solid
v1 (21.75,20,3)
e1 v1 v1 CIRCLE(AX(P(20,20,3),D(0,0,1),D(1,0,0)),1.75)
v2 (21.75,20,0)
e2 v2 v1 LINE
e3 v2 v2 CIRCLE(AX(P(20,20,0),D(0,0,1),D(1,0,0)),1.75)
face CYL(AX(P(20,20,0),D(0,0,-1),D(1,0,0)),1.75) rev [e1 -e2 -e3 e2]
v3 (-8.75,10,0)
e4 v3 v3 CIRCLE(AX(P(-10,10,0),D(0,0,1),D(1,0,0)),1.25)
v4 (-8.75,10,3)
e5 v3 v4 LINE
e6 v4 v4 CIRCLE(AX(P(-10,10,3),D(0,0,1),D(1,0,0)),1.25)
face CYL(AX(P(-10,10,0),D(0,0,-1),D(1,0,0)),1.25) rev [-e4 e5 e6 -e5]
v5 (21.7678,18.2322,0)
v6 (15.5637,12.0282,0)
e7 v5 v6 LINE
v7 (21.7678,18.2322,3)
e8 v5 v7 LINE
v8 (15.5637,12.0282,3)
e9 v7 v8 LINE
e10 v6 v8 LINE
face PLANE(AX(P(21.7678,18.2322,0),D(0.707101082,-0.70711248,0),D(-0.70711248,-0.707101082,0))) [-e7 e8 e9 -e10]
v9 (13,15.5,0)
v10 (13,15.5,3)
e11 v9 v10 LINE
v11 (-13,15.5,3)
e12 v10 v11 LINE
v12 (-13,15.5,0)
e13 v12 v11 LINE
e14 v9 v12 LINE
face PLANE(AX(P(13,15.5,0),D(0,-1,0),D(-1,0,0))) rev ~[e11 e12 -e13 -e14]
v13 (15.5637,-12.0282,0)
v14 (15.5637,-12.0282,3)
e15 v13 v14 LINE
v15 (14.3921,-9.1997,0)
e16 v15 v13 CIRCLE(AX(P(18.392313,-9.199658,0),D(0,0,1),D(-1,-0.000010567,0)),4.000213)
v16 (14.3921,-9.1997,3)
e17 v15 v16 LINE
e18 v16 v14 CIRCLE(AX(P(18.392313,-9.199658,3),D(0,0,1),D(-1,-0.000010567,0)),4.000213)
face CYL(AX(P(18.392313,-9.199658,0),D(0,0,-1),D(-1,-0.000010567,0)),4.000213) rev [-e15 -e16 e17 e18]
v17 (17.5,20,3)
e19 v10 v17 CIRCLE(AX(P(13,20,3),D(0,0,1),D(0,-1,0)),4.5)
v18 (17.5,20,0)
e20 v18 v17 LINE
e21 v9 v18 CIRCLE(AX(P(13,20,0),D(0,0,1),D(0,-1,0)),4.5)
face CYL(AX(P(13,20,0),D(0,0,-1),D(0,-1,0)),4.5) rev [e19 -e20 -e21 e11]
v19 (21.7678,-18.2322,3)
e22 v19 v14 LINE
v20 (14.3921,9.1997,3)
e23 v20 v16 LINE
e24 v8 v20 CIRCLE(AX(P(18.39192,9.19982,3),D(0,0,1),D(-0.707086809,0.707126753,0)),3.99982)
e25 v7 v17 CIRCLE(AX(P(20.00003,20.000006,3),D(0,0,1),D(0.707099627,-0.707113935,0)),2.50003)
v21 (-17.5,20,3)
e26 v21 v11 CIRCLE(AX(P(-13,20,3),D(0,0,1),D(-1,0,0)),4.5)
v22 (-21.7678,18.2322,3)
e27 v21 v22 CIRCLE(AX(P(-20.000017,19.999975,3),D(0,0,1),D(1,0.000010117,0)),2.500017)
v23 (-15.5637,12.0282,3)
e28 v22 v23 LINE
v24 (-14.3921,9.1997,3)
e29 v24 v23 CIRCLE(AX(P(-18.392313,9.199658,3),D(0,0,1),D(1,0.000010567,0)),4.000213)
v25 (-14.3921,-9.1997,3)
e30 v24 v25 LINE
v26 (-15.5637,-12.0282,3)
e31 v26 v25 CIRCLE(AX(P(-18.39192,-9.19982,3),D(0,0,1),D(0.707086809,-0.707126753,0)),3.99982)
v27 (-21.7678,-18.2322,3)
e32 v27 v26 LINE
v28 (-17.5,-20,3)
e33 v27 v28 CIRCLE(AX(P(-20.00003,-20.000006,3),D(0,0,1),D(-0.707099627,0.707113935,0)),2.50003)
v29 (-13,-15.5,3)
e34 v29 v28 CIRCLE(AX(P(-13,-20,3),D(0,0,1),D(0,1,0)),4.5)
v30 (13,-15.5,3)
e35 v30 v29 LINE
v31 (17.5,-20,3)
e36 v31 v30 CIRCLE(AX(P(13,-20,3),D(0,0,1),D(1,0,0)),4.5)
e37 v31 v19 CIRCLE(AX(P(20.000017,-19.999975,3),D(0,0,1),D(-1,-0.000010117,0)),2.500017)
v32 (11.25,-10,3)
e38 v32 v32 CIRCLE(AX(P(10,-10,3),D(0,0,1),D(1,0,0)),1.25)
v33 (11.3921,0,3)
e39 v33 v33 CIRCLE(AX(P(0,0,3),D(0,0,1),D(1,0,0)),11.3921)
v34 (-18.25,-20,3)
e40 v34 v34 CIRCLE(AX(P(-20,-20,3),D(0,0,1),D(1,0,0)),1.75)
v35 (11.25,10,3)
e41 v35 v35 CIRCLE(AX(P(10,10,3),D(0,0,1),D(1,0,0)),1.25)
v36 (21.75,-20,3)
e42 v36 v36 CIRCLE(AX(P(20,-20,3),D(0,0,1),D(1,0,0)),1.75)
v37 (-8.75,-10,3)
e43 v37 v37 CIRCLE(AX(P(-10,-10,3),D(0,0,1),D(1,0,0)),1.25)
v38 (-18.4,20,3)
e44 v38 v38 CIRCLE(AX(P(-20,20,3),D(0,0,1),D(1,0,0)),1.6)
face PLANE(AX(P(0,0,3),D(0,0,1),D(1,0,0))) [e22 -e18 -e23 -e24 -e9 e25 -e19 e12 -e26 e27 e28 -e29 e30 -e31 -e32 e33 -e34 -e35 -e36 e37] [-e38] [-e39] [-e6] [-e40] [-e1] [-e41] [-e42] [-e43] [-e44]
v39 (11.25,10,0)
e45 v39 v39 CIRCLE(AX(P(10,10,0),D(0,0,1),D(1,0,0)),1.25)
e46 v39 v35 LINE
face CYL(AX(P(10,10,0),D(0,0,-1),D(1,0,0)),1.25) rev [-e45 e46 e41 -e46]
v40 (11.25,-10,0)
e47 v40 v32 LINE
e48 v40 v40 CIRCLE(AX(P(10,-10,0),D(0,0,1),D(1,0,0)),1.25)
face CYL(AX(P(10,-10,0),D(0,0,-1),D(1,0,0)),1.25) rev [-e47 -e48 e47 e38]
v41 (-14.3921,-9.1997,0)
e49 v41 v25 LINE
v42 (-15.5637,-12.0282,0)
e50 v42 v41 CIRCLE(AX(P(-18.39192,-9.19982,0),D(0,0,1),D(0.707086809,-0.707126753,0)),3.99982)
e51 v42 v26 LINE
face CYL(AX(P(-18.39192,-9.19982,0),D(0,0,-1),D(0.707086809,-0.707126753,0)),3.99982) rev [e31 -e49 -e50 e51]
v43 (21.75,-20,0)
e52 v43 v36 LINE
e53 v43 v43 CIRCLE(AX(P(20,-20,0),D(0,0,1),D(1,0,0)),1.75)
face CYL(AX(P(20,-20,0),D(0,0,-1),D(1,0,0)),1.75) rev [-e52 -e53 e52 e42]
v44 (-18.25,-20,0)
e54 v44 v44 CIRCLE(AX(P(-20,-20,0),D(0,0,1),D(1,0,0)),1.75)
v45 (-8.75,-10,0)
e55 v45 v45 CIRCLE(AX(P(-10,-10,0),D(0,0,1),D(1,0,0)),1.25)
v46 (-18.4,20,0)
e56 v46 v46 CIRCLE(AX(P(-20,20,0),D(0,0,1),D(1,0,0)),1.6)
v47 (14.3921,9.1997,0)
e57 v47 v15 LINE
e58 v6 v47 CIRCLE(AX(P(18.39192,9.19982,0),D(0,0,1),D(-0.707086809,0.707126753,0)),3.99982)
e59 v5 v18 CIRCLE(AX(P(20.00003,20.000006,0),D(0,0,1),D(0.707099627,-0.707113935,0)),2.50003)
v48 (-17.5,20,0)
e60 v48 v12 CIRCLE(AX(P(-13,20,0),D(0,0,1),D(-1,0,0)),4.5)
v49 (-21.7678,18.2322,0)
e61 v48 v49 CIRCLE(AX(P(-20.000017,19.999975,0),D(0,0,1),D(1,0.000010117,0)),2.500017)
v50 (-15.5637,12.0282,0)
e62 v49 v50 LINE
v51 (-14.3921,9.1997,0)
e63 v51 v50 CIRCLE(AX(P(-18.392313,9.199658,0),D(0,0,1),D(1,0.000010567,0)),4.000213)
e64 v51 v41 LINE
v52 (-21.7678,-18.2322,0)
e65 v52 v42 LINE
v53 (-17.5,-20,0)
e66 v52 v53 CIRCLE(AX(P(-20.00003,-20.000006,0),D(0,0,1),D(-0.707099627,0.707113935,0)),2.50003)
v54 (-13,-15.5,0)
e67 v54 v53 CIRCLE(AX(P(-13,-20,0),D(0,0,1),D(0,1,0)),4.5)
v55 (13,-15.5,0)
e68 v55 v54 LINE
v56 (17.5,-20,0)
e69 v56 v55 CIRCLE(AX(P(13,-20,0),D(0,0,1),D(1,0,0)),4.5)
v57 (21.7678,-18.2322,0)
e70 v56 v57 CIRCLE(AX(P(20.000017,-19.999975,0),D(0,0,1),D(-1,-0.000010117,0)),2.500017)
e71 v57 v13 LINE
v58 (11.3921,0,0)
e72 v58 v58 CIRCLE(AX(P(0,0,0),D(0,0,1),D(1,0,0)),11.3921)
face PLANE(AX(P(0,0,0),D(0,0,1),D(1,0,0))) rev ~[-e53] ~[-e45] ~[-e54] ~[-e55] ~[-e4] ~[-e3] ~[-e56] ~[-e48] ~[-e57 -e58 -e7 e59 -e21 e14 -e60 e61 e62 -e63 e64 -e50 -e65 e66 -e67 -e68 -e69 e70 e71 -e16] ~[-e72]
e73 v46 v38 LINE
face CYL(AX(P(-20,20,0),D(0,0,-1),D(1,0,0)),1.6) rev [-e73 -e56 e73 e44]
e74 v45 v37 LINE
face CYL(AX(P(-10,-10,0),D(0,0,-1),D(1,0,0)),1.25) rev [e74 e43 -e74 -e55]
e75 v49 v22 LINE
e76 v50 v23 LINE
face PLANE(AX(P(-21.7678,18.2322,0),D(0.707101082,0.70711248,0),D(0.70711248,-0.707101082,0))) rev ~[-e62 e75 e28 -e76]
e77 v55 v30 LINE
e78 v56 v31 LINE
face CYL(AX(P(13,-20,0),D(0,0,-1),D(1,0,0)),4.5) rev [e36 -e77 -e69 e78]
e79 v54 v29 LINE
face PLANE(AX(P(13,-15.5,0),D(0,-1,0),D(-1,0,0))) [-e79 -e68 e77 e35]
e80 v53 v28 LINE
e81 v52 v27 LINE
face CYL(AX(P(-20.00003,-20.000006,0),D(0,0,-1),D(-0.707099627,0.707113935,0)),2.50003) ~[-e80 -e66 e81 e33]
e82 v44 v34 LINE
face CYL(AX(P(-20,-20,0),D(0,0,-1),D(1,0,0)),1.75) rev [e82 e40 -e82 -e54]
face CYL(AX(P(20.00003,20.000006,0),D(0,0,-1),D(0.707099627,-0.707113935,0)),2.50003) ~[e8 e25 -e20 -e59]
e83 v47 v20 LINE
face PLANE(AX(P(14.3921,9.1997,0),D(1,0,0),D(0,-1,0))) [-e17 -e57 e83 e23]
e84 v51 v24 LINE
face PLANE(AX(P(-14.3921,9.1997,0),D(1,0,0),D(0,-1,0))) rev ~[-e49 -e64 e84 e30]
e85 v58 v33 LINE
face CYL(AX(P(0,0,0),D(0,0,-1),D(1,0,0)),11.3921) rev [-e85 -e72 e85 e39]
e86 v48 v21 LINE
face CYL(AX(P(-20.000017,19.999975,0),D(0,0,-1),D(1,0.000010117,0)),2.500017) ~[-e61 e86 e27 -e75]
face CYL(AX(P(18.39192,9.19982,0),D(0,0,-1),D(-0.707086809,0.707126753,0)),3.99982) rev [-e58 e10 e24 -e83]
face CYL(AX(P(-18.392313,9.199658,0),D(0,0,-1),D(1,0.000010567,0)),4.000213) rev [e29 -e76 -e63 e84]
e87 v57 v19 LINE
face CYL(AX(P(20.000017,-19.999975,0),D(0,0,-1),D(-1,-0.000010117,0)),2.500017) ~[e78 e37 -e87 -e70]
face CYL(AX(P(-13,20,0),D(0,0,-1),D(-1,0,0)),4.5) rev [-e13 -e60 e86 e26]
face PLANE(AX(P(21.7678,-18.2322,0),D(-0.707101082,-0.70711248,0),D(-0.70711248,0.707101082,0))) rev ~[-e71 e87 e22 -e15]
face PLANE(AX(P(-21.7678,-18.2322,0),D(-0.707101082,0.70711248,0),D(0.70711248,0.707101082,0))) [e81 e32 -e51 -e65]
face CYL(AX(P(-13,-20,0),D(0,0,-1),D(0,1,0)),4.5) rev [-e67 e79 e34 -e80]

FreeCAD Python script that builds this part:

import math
import FreeCAD as App
import Part
import Sketcher
Q = App.Units.Quantity

doc = App.newDocument("Part")
body = doc.addObject("PartDesign::Body", "Body")

# Sketch on XY plane
sketch1 = body.newObject("Sketcher::SketchObject", "Sketch")
sketch1.AttachmentSupport = (doc.getObject("XY_Plane"), [""])
sketch1.MapMode = "FlatFace"
sketch1.addGeometry(Part.LineSegment(App.Vector(15.6, 12, 0), App.Vector(21.8, 18.2, 0)), False)
sketch1.addGeometry(Part.ArcOfCircle(Part.Circle(App.Vector(20, 20, 0), App.Vector(0, 0, 1), 2.5), math.radians(-45), math.radians(180)), False)
sketch1.addGeometry(Part.ArcOfCircle(Part.Circle(App.Vector(13, 20, 0), App.Vector(0, 0, 1), 4.5), math.radians(-90), math.radians(0)), False)
sketch1.addGeometry(Part.LineSegment(App.Vector(13, 15.5, 0), App.Vector(-13, 15.5, 0)), False)
sketch1.addGeometry(Part.ArcOfCircle(Part.Circle(App.Vector(-13, 20, 0), App.Vector(0, 0, 1), 4.5), math.radians(180), math.radians(270)), False)
sketch1.addGeometry(Part.ArcOfCircle(Part.Circle(App.Vector(-20, 20, 0), App.Vector(0, 0, 1), 2.5), math.radians(0), math.radians(225)), False)
sketch1.addGeometry(Part.LineSegment(App.Vector(-21.8, 18.2, 0), App.Vector(-15.6, 12, 0)), False)
sketch1.addGeometry(Part.ArcOfCircle(Part.Circle(App.Vector(-18.4, 9.2, 0), App.Vector(0, 0, 1), 4), math.radians(0), math.radians(45)), False)
sketch1.addGeometry(Part.LineSegment(App.Vector(-14.4, 9.2, 0), App.Vector(-14.4, -9.2, 0)), False)
sketch1.addGeometry(Part.ArcOfCircle(Part.Circle(App.Vector(-18.4, -9.2, 0), App.Vector(0, 0, 1), 4), math.radians(-45), math.radians(0)), False)
sketch1.addGeometry(Part.LineSegment(App.Vector(-15.6, -12, 0), App.Vector(-21.8, -18.2, 0)), False)
sketch1.addGeometry(Part.ArcOfCircle(Part.Circle(App.Vector(-20, -20, 0), App.Vector(0, 0, 1), 2.5), math.radians(135), math.radians(360)), False)
sketch1.addGeometry(Part.ArcOfCircle(Part.Circle(App.Vector(-13, -20, 0), App.Vector(0, 0, 1), 4.5), math.radians(90), math.radians(180)), False)
sketch1.addGeometry(Part.LineSegment(App.Vector(-13, -15.5, 0), App.Vector(13, -15.5, 0)), False)
sketch1.addGeometry(Part.ArcOfCircle(Part.Circle(App.Vector(13, -20, 0), App.Vector(0, 0, 1), 4.5), math.radians(0), math.radians(90)), False)
sketch1.addGeometry(Part.ArcOfCircle(Part.Circle(App.Vector(20, -20, 0), App.Vector(0, 0, 1), 2.5), math.radians(180), math.radians(405)), False)
sketch1.addGeometry(Part.LineSegment(App.Vector(21.8, -18.2, 0), App.Vector(15.6, -12, 0)), False)
sketch1.addGeometry(Part.ArcOfCircle(Part.Circle(App.Vector(18.4, -9.2, 0), App.Vector(0, 0, 1), 4), math.radians(180), math.radians(225)), False)
sketch1.addGeometry(Part.LineSegment(App.Vector(14.4, -9.2, 0), App.Vector(14.4, 9.2, 0)), False)
sketch1.addGeometry(Part.ArcOfCircle(Part.Circle(App.Vector(18.4, 9.2, 0), App.Vector(0, 0, 1), 4), math.radians(135), math.radians(180)), False)
sketch1.addGeometry(Part.Circle(App.Vector(-20, -20, 0), App.Vector(0, 0, 1), 1.8), False)
sketch1.addGeometry(Part.Circle(App.Vector(-10, -10, 0), App.Vector(0, 0, 1), 1.2), False)
sketch1.addGeometry(Part.Circle(App.Vector(20, -20, 0), App.Vector(0, 0, 1), 1.8), False)
sketch1.addGeometry(Part.Circle(App.Vector(10, -10, 0), App.Vector(0, 0, 1), 1.2), False)
sketch1.addGeometry(Part.Circle(App.Vector(-10, 10, 0), App.Vector(0, 0, 1), 1.2), False)
sketch1.addGeometry(Part.Circle(App.Vector(-20, 20, 0), App.Vector(0, 0, 1), 1.6), False)
sketch1.addGeometry(Part.Circle(App.Vector(0, 0, 0), App.Vector(0, 0, 1), 11.4), False)
sketch1.addGeometry(Part.Circle(App.Vector(10, 10, 0), App.Vector(0, 0, 1), 1.2), False)
sketch1.addGeometry(Part.Circle(App.Vector(20, 20, 0), App.Vector(0, 0, 1), 1.8), False)
sketch1.addConstraint(Sketcher.Constraint("Tangent", 0, 2, 1, 1))
sketch1.addConstraint(Sketcher.Constraint("Tangent", 1, 2, 2, 2))
sketch1.addConstraint(Sketcher.Constraint("Tangent", 2, 1, 3, 1))
sketch1.addConstraint(Sketcher.Constraint("Tangent", 3, 2, 4, 2))
sketch1.addConstraint(Sketcher.Constraint("Tangent", 4, 1, 5, 1))
sketch1.addConstraint(Sketcher.Constraint("Tangent", 5, 2, 6, 1))
sketch1.addConstraint(Sketcher.Constraint("Tangent", 6, 2, 7, 2))
sketch1.addConstraint(Sketcher.Constraint("Tangent", 7, 1, 8, 1))
sketch1.addConstraint(Sketcher.Constraint("Tangent", 8, 2, 9, 2))
sketch1.addConstraint(Sketcher.Constraint("Tangent", 9, 1, 10, 1))
sketch1.addConstraint(Sketcher.Constraint("Tangent", 10, 2, 11, 1))
sketch1.addConstraint(Sketcher.Constraint("Tangent", 11, 2, 12, 2))
sketch1.addConstraint(Sketcher.Constraint("Tangent", 12, 1, 13, 1))
sketch1.addConstraint(Sketcher.Constraint("Tangent", 13, 2, 14, 2))
sketch1.addConstraint(Sketcher.Constraint("Tangent", 14, 1, 15, 1))
sketch1.addConstraint(Sketcher.Constraint("Tangent", 15, 2, 16, 1))
sketch1.addConstraint(Sketcher.Constraint("Tangent", 16, 2, 17, 2))
sketch1.addConstraint(Sketcher.Constraint("Tangent", 17, 1, 18, 1))
sketch1.addConstraint(Sketcher.Constraint("Tangent", 18, 2, 19, 2))
sketch1.addConstraint(Sketcher.Constraint("Tangent", 19, 1, 0, 1))
sketch1.addConstraint(Sketcher.Constraint("Horizontal", 3))
sketch1.addConstraint(Sketcher.Constraint("Vertical", 8))
sketch1.addConstraint(Sketcher.Constraint("Horizontal", 13))
sketch1.addConstraint(Sketcher.Constraint("Vertical", 18))
sketch1.addConstraint(Sketcher.Constraint("Coincident", 26, 3, -1, 1))
sketch1.addConstraint(Sketcher.Constraint("Coincident", 20, 3, 11, 3))
sketch1.addConstraint(Sketcher.Constraint("Coincident", 22, 3, 15, 3))
sketch1.addConstraint(Sketcher.Constraint("Coincident", 25, 3, 5, 3))
sketch1.addConstraint(Sketcher.Constraint("Coincident", 28, 3, 1, 3))
sketch1.addConstraint(Sketcher.Constraint("Equal", 2, 4))
sketch1.addConstraint(Sketcher.Constraint("Equal", 1, 5))
sketch1.addConstraint(Sketcher.Constraint("Equal", 7, 9))
sketch1.addConstraint(Sketcher.Constraint("Equal", 5, 11))
sketch1.addConstraint(Sketcher.Constraint("Equal", 4, 12))
sketch1.addConstraint(Sketcher.Constraint("Equal", 12, 14))
sketch1.addConstraint(Sketcher.Constraint("Equal", 11, 15))
sketch1.addConstraint(Sketcher.Constraint("Equal", 9, 17))
sketch1.addConstraint(Sketcher.Constraint("Equal", 17, 19))
sketch1.addConstraint(Sketcher.Constraint("Equal", 20, 22))
sketch1.addConstraint(Sketcher.Constraint("Equal", 21, 23))
sketch1.addConstraint(Sketcher.Constraint("Equal", 23, 24))
sketch1.addConstraint(Sketcher.Constraint("Equal", 24, 27))
sketch1.addConstraint(Sketcher.Constraint("Equal", 22, 28))
sketch1.addConstraint(Sketcher.Constraint("Symmetric", 1, 3, 11, 3, -1, 1))
sketch1.addConstraint(Sketcher.Constraint("Symmetric", 4, 3, 14, 3, -1, 1))
sketch1.addConstraint(Sketcher.Constraint("Symmetric", 7, 3, 17, 3, -1, 1))
sketch1.addConstraint(Sketcher.Constraint("Symmetric", 23, 3, 24, 3, -1, 1))
sketch1.addConstraint(Sketcher.Constraint("Symmetric", 21, 3, 27, 3, -1, 1))
sketch1.addConstraint(Sketcher.Constraint("Symmetric", 1, 3, 5, 3, -2))
sketch1.addConstraint(Sketcher.Constraint("Symmetric", 21, 3, 23, 3, -2))
sketch1.addConstraint(Sketcher.Constraint("Symmetric", 10, 2, 15, 2, -2))
sketch1.addConstraint(Sketcher.Constraint("Perpendicular", 0, 6))
sketch1.addConstraint(Sketcher.Constraint("Perpendicular", 6, 10))
sketch1.addConstraint(Sketcher.Constraint("Horizontal", 1, 3, 2, 3))
sketch1.addConstraint(Sketcher.Constraint("Radius", 7, Q("4 mm")))
sketch1.addConstraint(Sketcher.Constraint("Diameter", 20, Q("3.5 mm")))
sketch1.addConstraint(Sketcher.Constraint("Diameter", 21, Q("2.5 mm")))
sketch1.addConstraint(Sketcher.Constraint("Diameter", 25, Q("3.2 mm")))
sketch1.addConstraint(Sketcher.Constraint("Radius", 1, Q("2.5 mm")))
sketch1.addConstraint(Sketcher.Constraint("DistanceX", -1, 1, 1, 3, Q("20 mm")))
sketch1.addConstraint(Sketcher.Constraint("DistanceY", -1, 1, 1, 3, Q("20 mm")))
sketch1.addConstraint(Sketcher.Constraint("DistanceX", 12, 3, 21, 3, Q("3 mm")))
sketch1.addConstraint(Sketcher.Constraint("DistanceX", 21, 3, 23, 3, Q("20 mm")))
sketch1.addConstraint(Sketcher.Constraint("DistanceY", 21, 3, 24, 3, Q("20 mm")))
sketch1.addConstraint(Sketcher.Constraint("Diameter", 26, Q("22.7842 mm")))
sketch1.addConstraint(Sketcher.Constraint("DistanceY", 8, 2, 8, 1, Q("18.3994 mm")))
pad1 = body.newObject("PartDesign::Pad", "Pad")
pad1.Profile = sketch1
pad1.Length = 3

doc.recompute()
